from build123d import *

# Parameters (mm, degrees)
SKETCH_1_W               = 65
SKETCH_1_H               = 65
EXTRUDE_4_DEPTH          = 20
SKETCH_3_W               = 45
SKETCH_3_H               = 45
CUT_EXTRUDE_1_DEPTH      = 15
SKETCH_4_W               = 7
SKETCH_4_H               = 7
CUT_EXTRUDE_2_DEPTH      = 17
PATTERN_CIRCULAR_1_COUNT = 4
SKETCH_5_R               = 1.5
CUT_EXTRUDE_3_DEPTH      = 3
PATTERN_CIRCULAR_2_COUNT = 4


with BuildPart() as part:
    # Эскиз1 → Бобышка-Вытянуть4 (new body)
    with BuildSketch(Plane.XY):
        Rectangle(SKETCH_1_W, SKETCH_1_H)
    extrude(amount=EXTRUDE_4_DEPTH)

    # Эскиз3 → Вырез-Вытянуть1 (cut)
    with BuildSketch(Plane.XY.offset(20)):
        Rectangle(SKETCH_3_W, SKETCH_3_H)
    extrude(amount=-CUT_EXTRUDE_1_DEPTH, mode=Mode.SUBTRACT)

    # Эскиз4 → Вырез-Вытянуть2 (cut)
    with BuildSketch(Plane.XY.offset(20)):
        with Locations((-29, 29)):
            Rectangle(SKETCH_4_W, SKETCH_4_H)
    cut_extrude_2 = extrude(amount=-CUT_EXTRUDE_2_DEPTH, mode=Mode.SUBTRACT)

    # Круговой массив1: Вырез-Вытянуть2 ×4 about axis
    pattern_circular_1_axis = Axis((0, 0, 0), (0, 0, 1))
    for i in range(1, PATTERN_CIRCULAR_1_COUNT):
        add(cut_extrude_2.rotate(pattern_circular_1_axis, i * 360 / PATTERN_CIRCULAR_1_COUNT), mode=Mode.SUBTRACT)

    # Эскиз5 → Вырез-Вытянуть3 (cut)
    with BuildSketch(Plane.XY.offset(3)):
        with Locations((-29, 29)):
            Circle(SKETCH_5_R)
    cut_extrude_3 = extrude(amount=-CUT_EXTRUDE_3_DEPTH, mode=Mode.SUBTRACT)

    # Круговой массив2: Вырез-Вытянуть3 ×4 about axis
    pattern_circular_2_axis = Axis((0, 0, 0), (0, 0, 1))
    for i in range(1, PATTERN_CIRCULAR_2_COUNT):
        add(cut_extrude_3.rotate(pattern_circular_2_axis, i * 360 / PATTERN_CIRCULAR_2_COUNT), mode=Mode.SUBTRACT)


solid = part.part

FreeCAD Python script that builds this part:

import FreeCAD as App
import Part
import Sketcher
from FreeCAD import Vector


def add_polygon(sketch, points):
    """Adds a closed chain of lines whose ends are joined by coincident constraints."""
    first, n = sketch.GeometryCount, len(points)
    for a, b in zip(points, points[1:] + points[:1]):
        sketch.addGeometry(Part.LineSegment(App.Vector(*a, 0), App.Vector(*b, 0)), False)
    for i in range(n):
        sketch.addConstraint(Sketcher.Constraint("Coincident", first + i, 2, first + (i + 1) % n, 1))

doc = App.newDocument("Part")
body = doc.addObject("PartDesign::Body", "Body")

# Sketch on XY plane
sketch1 = body.newObject("Sketcher::SketchObject", "Sketch")
sketch1.AttachmentSupport = (doc.getObject("XY_Plane"), [""])
sketch1.MapMode = "FlatFace"
add_polygon(sketch1, [(-32, 32), (-32, -32), (32, -32), (32, 32)])  # lines 0-3
sketch1.addConstraint(Sketcher.Constraint("Vertical", 0))
sketch1.addConstraint(Sketcher.Constraint("Horizontal", 1))
sketch1.addConstraint(Sketcher.Constraint("Vertical", 2))
sketch1.addConstraint(Sketcher.Constraint("Horizontal", 3))
sketch1.addConstraint(Sketcher.Constraint("Symmetric", 0, 2, 2, 2, -1, 1))
sketch1.addConstraint(Sketcher.Constraint("Equal", 3, 0))
sketch1.addConstraint(Sketcher.Constraint("DistanceX", 1, 1, 1, 2, 65.0))
pad1 = body.newObject("PartDesign::Pad", "Pad")
pad1.Profile = sketch1
pad1.Length = 20

# Sketch on XY plane
sketch2 = body.newObject("Sketcher::SketchObject", "Sketch001")
sketch2.AttachmentSupport = (doc.getObject("XY_Plane"), [""])
sketch2.MapMode = "FlatFace"
sketch2.AttachmentOffset = App.Placement(Vector(0, 0, 20), App.Rotation())
add_polygon(sketch2, [(-22, 22), (-22, -22), (22, -22), (22, 22)])  # lines 0-3
sketch2.addConstraint(Sketcher.Constraint("Vertical", 0))
sketch2.addConstraint(Sketcher.Constraint("Horizontal", 1))
sketch2.addConstraint(Sketcher.Constraint("Vertical", 2))
sketch2.addConstraint(Sketcher.Constraint("Horizontal", 3))
sketch2.addConstraint(Sketcher.Constraint("Symmetric", 0, 2, 2, 2, -1, 1))
sketch2.addConstraint(Sketcher.Constraint("Equal", 3, 0))
sketch2.addConstraint(Sketcher.Constraint("DistanceX", 1, 1, 1, 2, 45.0))
pocket1 = body.newObject("PartDesign::Pocket", "Pocket")
pocket1.Profile = sketch2
pocket1.Length = 15

# Sketch on XY plane
sketch3 = body.newObject("Sketcher::SketchObject", "Sketch002")
sketch3.AttachmentSupport = (doc.getObject("XY_Plane"), [""])
sketch3.MapMode = "FlatFace"
sketch3.AttachmentOffset = App.Placement(Vector(0, 0, 20), App.Rotation())
add_polygon(sketch3, [(-32, 32), (-32, 26), (-26, 26), (-26, 32)])  # lines 0-3
sketch3.addConstraint(Sketcher.Constraint("Vertical", 0))
sketch3.addConstraint(Sketcher.Constraint("Horizontal", 1))
sketch3.addConstraint(Sketcher.Constraint("Vertical", 2))
sketch3.addConstraint(Sketcher.Constraint("Horizontal", 3))
sketch3.addConstraint(Sketcher.Constraint("Equal", 3, 0))
sketch3.addConstraint(Sketcher.Constraint("DistanceX", 1, 1, 1, 2, 7.0))
sketch3.addConstraint(Sketcher.Constraint("DistanceX", 0, 2, -1, 1, 32.5))
sketch3.addConstraint(Sketcher.Constraint("DistanceY", -1, 1, 0, 2, 25.5))
pocket2 = body.newObject("PartDesign::Pocket", "Pocket001")
pocket2.Profile = sketch3
pocket2.Length = 17
doc.recompute()

polarpattern = body.newObject("PartDesign::PolarPattern", "PolarPattern")
polarpattern.Originals = [pocket2]
polarpattern.Axis = (doc.getObject("Z_Axis"), [""])
polarpattern.Angle = 360
polarpattern.Occurrences = 4
body.Tip = polarpattern

# Sketch on XY plane
sketch4 = body.newObject("Sketcher::SketchObject", "Sketch003")
sketch4.AttachmentSupport = (doc.getObject("XY_Plane"), [""])
sketch4.MapMode = "FlatFace"
sketch4.AttachmentOffset = App.Placement(Vector(0, 0, 3), App.Rotation())
sketch4.addGeometry(Part.Circle(Vector(-29, 29, 0), Vector(0, 0, 1), 1.5), False)
sketch4.addConstraint(Sketcher.Constraint("Diameter", 0, 3.0))
sketch4.addConstraint(Sketcher.Constraint("DistanceX", 0, 3, -1, 1, 29.0))
sketch4.addConstraint(Sketcher.Constraint("DistanceY", -1, 1, 0, 3, 29.0))
pocket3 = body.newObject("PartDesign::Pocket", "Pocket002")
pocket3.Profile = sketch4
pocket3.Length = 3
doc.recompute()

polarpattern2 = body.newObject("PartDesign::PolarPattern", "PolarPattern001")
polarpattern2.Originals = [pocket3]
polarpattern2.Axis = (doc.getObject("Z_Axis"), [""])
polarpattern2.Angle = 360
polarpattern2.Occurrences = 4
body.Tip = polarpattern2

doc.recompute()
